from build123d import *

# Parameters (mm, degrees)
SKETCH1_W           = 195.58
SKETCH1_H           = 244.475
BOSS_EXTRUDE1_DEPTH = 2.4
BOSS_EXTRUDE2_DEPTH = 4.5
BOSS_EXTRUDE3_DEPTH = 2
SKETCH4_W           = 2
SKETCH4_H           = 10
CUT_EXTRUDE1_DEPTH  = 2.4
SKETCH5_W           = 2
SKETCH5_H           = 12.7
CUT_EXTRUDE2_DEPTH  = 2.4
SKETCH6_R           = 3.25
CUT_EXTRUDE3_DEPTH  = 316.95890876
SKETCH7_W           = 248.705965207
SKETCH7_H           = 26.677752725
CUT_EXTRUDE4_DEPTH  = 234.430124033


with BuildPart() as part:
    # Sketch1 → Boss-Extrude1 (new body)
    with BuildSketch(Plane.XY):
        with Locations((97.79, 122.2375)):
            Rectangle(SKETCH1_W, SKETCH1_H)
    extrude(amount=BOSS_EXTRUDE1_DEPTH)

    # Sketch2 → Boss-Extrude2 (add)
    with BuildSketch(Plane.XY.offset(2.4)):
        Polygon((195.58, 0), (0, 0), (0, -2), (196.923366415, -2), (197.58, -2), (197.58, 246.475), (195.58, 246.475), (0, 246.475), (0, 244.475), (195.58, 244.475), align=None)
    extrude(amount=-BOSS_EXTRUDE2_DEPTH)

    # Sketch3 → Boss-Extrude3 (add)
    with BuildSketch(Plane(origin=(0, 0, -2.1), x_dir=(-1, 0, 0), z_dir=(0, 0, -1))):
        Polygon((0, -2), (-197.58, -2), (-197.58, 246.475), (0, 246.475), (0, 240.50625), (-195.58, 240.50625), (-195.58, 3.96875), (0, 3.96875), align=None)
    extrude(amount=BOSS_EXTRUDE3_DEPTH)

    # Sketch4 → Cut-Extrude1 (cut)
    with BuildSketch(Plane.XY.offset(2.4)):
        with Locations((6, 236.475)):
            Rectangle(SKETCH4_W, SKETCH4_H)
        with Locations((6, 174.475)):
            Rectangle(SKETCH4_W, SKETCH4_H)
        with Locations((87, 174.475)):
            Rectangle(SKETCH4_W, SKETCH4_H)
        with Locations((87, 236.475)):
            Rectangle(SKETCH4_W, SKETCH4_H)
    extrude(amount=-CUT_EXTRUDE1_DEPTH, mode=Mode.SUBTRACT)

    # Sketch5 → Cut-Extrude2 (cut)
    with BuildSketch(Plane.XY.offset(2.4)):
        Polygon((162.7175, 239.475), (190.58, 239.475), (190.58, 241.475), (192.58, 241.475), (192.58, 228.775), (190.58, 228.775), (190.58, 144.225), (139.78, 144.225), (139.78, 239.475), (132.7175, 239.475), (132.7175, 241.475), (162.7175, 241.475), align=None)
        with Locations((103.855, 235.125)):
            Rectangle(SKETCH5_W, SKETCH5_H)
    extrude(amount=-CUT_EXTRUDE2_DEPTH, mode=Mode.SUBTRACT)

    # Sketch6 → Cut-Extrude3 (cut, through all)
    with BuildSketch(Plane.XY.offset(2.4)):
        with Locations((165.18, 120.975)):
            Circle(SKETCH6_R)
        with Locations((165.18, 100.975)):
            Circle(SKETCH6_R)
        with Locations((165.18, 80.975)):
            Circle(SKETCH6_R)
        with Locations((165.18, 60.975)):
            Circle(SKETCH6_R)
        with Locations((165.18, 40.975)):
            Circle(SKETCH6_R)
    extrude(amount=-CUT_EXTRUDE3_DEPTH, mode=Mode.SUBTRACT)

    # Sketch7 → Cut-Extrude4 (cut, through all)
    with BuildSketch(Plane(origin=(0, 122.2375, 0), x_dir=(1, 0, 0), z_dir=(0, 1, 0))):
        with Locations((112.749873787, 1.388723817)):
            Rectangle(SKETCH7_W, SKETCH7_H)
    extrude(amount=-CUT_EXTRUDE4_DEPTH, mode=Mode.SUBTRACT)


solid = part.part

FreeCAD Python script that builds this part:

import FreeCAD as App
import Part
import Sketcher
from FreeCAD import Vector

doc = App.newDocument("Part")
body = doc.addObject("PartDesign::Body", "Body")

# Sketch on XY plane
sketch1 = body.newObject("Sketcher::SketchObject", "Sketch")
sketch1.AttachmentSupport = (doc.getObject("XY_Plane"), [""])
sketch1.MapMode = "FlatFace"
sketch1.addGeometry(Part.LineSegment(Vector(0, 244, 0), Vector(0, 0, 0)), False)
sketch1.addGeometry(Part.LineSegment(Vector(0, 0, 0), Vector(196, 0, 0)), False)
sketch1.addGeometry(Part.LineSegment(Vector(196, 0, 0), Vector(196, 244, 0)), False)
sketch1.addGeometry(Part.LineSegment(Vector(196, 244, 0), Vector(0, 244, 0)), False)
sketch1.addConstraint(Sketcher.Constraint("Coincident", 0, 2, 1, 1))
sketch1.addConstraint(Sketcher.Constraint("Coincident", 1, 2, 2, 1))
sketch1.addConstraint(Sketcher.Constraint("Coincident", 2, 2, 3, 1))
sketch1.addConstraint(Sketcher.Constraint("Coincident", 3, 2, 0, 1))
sketch1.addConstraint(Sketcher.Constraint("Vertical", 0))
sketch1.addConstraint(Sketcher.Constraint("Horizontal", 1))
sketch1.addConstraint(Sketcher.Constraint("Vertical", 2))
sketch1.addConstraint(Sketcher.Constraint("Horizontal", 3))
sketch1.addConstraint(Sketcher.Constraint("Coincident", 0, 2, -1, 1))
sketch1.addConstraint(Sketcher.Constraint("DistanceX", 1, 1, 1, 2, 195.58))
sketch1.addConstraint(Sketcher.Constraint("DistanceY", 0, 2, 0, 1, 244.475))
pad1 = body.newObject("PartDesign::Pad", "Pad")
pad1.Profile = sketch1
pad1.Length = 2.4

# Sketch on XY plane
sketch2 = body.newObject("Sketcher::SketchObject", "Sketch001")
sketch2.AttachmentSupport = (doc.getObject("XY_Plane"), [""])
sketch2.MapMode = "FlatFace"
sketch2.AttachmentOffset = App.Placement(Vector(0, 0, 2.4), App.Rotation())
sketch2.addGeometry(Part.LineSegment(Vector(195.6, 0, 0), Vector(0, 0, 0)), False)
sketch2.addGeometry(Part.LineSegment(Vector(0, 0, 0), Vector(0, -2, 0)), False)
sketch2.addGeometry(Part.LineSegment(Vector(0, -2, 0), Vector(197.6, -2, 0)), False)
sketch2.addGeometry(Part.LineSegment(Vector(197.6, -2, 0), Vector(197.6, 246.5, 0)), False)
sketch2.addGeometry(Part.LineSegment(Vector(197.6, 246.5, 0), Vector(0, 246.5, 0)), False)
sketch2.addGeometry(Part.LineSegment(Vector(0, 246.5, 0), Vector(0, 244.5, 0)), False)
sketch2.addGeometry(Part.LineSegment(Vector(0, 244.5, 0), Vector(195.6, 244.5, 0)), False)
sketch2.addGeometry(Part.LineSegment(Vector(195.6, 244.5, 0), Vector(195.6, 0, 0)), False)
sketch2.addConstraint(Sketcher.Constraint("Coincident", 0, 2, 1, 1))
sketch2.addConstraint(Sketcher.Constraint("Coincident", 1, 2, 2, 1))
sketch2.addConstraint(Sketcher.Constraint("Coincident", 2, 2, 3, 1))
sketch2.addConstraint(Sketcher.Constraint("Coincident", 3, 2, 4, 1))
sketch2.addConstraint(Sketcher.Constraint("Coincident", 4, 2, 5, 1))
sketch2.addConstraint(Sketcher.Constraint("Coincident", 5, 2, 6, 1))
sketch2.addConstraint(Sketcher.Constraint("Coincident", 6, 2, 7, 1))
sketch2.addConstraint(Sketcher.Constraint("Coincident", 7, 2, 0, 1))
sketch2.addConstraint(Sketcher.Constraint("Horizontal", 0))
sketch2.addConstraint(Sketcher.Constraint("Vertical", 1))
sketch2.addConstraint(Sketcher.Constraint("Horizontal", 2))
sketch2.addConstraint(Sketcher.Constraint("Vertical", 3))
sketch2.addConstraint(Sketcher.Constraint("Horizontal", 4))
sketch2.addConstraint(Sketcher.Constraint("Vertical", 5))
sketch2.addConstraint(Sketcher.Constraint("Horizontal", 6))
sketch2.addConstraint(Sketcher.Constraint("Vertical", 7))
sketch2.addConstraint(Sketcher.Constraint("Coincident", 0, 2, -1, 1))
sketch2.addConstraint(Sketcher.Constraint("PointOnObject", 4, 2, -2))
sketch2.addConstraint(Sketcher.Constraint("Equal", 1, 5))
sketch2.addConstraint(Sketcher.Constraint("DistanceY", 1, 2, 1, 1, 2.0))
sketch2.addConstraint(Sketcher.Constraint("DistanceX", 6, 2, 3, 2, 2.0))
sketch2.addConstraint(Sketcher.Constraint("DistanceX", 0, 2, 0, 1, 195.58))
sketch2.addConstraint(Sketcher.Constraint("DistanceY", 3, 1, 3, 2, 248.475))
pad2 = body.newObject("PartDesign::Pad", "Pad001")
pad2.Profile = sketch2
pad2.Length = 4.5
pad2.Reversed = True

# Sketch on XY plane
sketch3 = body.newObject("Sketcher::SketchObject", "Sketch002")
sketch3.AttachmentSupport = (doc.getObject("XY_Plane"), [""])
sketch3.MapMode = "FlatFace"
sketch3.AttachmentOffset = App.Placement(Vector(0, 0, -2.1), App.Rotation())
sketch3.addGeometry(Part.LineSegment(Vector(198, -2, 0), Vector(0, -2, 0)), False)
sketch3.addGeometry(Part.LineSegment(Vector(0, -2, 0), Vector(0, 4, 0)), False)
sketch3.addGeometry(Part.LineSegment(Vector(0, 4, 0), Vector(196, 4, 0)), False)
sketch3.addGeometry(Part.LineSegment(Vector(196, 4, 0), Vector(196, 241, 0)), False)
sketch3.addGeometry(Part.LineSegment(Vector(196, 241, 0), Vector(0, 241, 0)), False)
sketch3.addGeometry(Part.LineSegment(Vector(0, 241, 0), Vector(0, 246, 0)), False)
sketch3.addGeometry(Part.LineSegment(Vector(0, 246, 0), Vector(198, 246, 0)), False)
sketch3.addGeometry(Part.LineSegment(Vector(198, 246, 0), Vector(198, -2, 0)), False)
sketch3.addConstraint(Sketcher.Constraint("Coincident", 0, 2, 1, 1))
sketch3.addConstraint(Sketcher.Constraint("Coincident", 1, 2, 2, 1))
sketch3.addConstraint(Sketcher.Constraint("Coincident", 2, 2, 3, 1))
sketch3.addConstraint(Sketcher.Constraint("Coincident", 3, 2, 4, 1))
sketch3.addConstraint(Sketcher.Constraint("Coincident", 4, 2, 5, 1))
sketch3.addConstraint(Sketcher.Constraint("Coincident", 5, 2, 6, 1))
sketch3.addConstraint(Sketcher.Constraint("Coincident", 6, 2, 7, 1))
sketch3.addConstraint(Sketcher.Constraint("Coincident", 7, 2, 0, 1))
sketch3.addConstraint(Sketcher.Constraint("Horizontal", 0))
sketch3.addConstraint(Sketcher.Constraint("Vertical", 1))
sketch3.addConstraint(Sketcher.Constraint("Horizontal", 2))
sketch3.addConstraint(Sketcher.Constraint("Vertical", 3))
sketch3.addConstraint(Sketcher.Constraint("Horizontal", 4))
sketch3.addConstraint(Sketcher.Constraint("Vertical", 5))
sketch3.addConstraint(Sketcher.Constraint("Horizontal", 6))
sketch3.addConstraint(Sketcher.Constraint("Vertical", 7))
sketch3.addConstraint(Sketcher.Constraint("PointOnObject", 0, 2, -2))
sketch3.addConstraint(Sketcher.Constraint("PointOnObject", 4, 2, -2))
sketch3.addConstraint(Sketcher.Constraint("Equal", 1, 5))
sketch3.addConstraint(Sketcher.Constraint("DistanceY", 0, 2, -1, 1, 2.0))
sketch3.addConstraint(Sketcher.Constraint("DistanceX", 3, 2, 6, 2, 2.0))
sketch3.addConstraint(Sketcher.Constraint("DistanceX", 0, 2, 0, 1, 197.58))
sketch3.addConstraint(Sketcher.Constraint("DistanceY", 7, 2, 7, 1, 248.475))
sketch3.addConstraint(Sketcher.Constraint("DistanceY", 3, 1, 3, 2, 236.5375))
pad3 = body.newObject("PartDesign::Pad", "Pad002")
pad3.Profile = sketch3
pad3.Length = 2
pad3.Reversed = True

# Sketch on XY plane
sketch4 = body.newObject("Sketcher::SketchObject", "Sketch003")
sketch4.AttachmentSupport = (doc.getObject("XY_Plane"), [""])
sketch4.MapMode = "FlatFace"
sketch4.AttachmentOffset = App.Placement(Vector(0, 0, 2.4), App.Rotation())
sketch4.addGeometry(Part.LineSegment(Vector(5, 241.5, 0), Vector(5, 231.5, 0)), False)
sketch4.addGeometry(Part.LineSegment(Vector(5, 231.5, 0), Vector(7, 231.5, 0)), False)
sketch4.addGeometry(Part.LineSegment(Vector(7, 231.5, 0), Vector(7, 241.5, 0)), False)
sketch4.addGeometry(Part.LineSegment(Vector(7, 241.5, 0), Vector(5, 241.5, 0)), False)
sketch4.addGeometry(Part.LineSegment(Vector(5, 179.5, 0), Vector(5, 169.5, 0)), False)
sketch4.addGeometry(Part.LineSegment(Vector(5, 169.5, 0), Vector(7, 169.5, 0)), False)
sketch4.addGeometry(Part.LineSegment(Vector(7, 169.5, 0), Vector(7, 179.5, 0)), False)
sketch4.addGeometry(Part.LineSegment(Vector(7, 179.5, 0), Vector(5, 179.5, 0)), False)
sketch4.addGeometry(Part.LineSegment(Vector(86, 179.5, 0), Vector(86, 169.5, 0)), False)
sketch4.addGeometry(Part.LineSegment(Vector(86, 169.5, 0), Vector(88, 169.5, 0)), False)
sketch4.addGeometry(Part.LineSegment(Vector(88, 169.5, 0), Vector(88, 179.5, 0)), False)
sketch4.addGeometry(Part.LineSegment(Vector(88, 179.5, 0), Vector(86, 179.5, 0)), False)
sketch4.addGeometry(Part.LineSegment(Vector(86, 241.5, 0), Vector(86, 231.5, 0)), False)
sketch4.addGeometry(Part.LineSegment(Vector(86, 231.5, 0), Vector(88, 231.5, 0)), False)
sketch4.addGeometry(Part.LineSegment(Vector(88, 231.5, 0), Vector(88, 241.5, 0)), False)
sketch4.addGeometry(Part.LineSegment(Vector(88, 241.5, 0), Vector(86, 241.5, 0)), False)
sketch4.addConstraint(Sketcher.Constraint("Coincident", 0, 2, 1, 1))
sketch4.addConstraint(Sketcher.Constraint("Coincident", 1, 2, 2, 1))
sketch4.addConstraint(Sketcher.Constraint("Coincident", 2, 2, 3, 1))
sketch4.addConstraint(Sketcher.Constraint("Coincident", 3, 2, 0, 1))
sketch4.addConstraint(Sketcher.Constraint("Coincident", 4, 2, 5, 1))
sketch4.addConstraint(Sketcher.Constraint("Coincident", 5, 2, 6, 1))
sketch4.addConstraint(Sketcher.Constraint("Coincident", 6, 2, 7, 1))
sketch4.addConstraint(Sketcher.Constraint("Coincident", 7, 2, 4, 1))
sketch4.addConstraint(Sketcher.Constraint("Coincident", 8, 2, 9, 1))
sketch4.addConstraint(Sketcher.Constraint("Coincident", 9, 2, 10, 1))
sketch4.addConstraint(Sketcher.Constraint("Coincident", 10, 2, 11, 1))
sketch4.addConstraint(Sketcher.Constraint("Coincident", 11, 2, 8, 1))
sketch4.addConstraint(Sketcher.Constraint("Coincident", 12, 2, 13, 1))
sketch4.addConstraint(Sketcher.Constraint("Coincident", 13, 2, 14, 1))
sketch4.addConstraint(Sketcher.Constraint("Coincident", 14, 2, 15, 1))
sketch4.addConstraint(Sketcher.Constraint("Coincident", 15, 2, 12, 1))
sketch4.addConstraint(Sketcher.Constraint("Vertical", 0))
sketch4.addConstraint(Sketcher.Constraint("Horizontal", 1))
sketch4.addConstraint(Sketcher.Constraint("Vertical", 2))
sketch4.addConstraint(Sketcher.Constraint("Horizontal", 3))
sketch4.addConstraint(Sketcher.Constraint("Vertical", 4))
sketch4.addConstraint(Sketcher.Constraint("Horizontal", 5))
sketch4.addConstraint(Sketcher.Constraint("Vertical", 6))
sketch4.addConstraint(Sketcher.Constraint("Horizontal", 7))
sketch4.addConstraint(Sketcher.Constraint("Vertical", 8))
sketch4.addConstraint(Sketcher.Constraint("Horizontal", 9))
sketch4.addConstraint(Sketcher.Constraint("Vertical", 10))
sketch4.addConstraint(Sketcher.Constraint("Horizontal", 11))
sketch4.addConstraint(Sketcher.Constraint("Vertical", 12))
sketch4.addConstraint(Sketcher.Constraint("Horizontal", 13))
sketch4.addConstraint(Sketcher.Constraint("Vertical", 14))
sketch4.addConstraint(Sketcher.Constraint("Horizontal", 15))
sketch4.addConstraint(Sketcher.Constraint("Horizontal", 5, 2, 8, 2))
sketch4.addConstraint(Sketcher.Constraint("Horizontal", 7, 2, 10, 2))
sketch4.addConstraint(Sketcher.Constraint("Horizontal", 1, 2, 12, 2))
sketch4.addConstraint(Sketcher.Constraint("Horizontal", 3, 2, 14, 2))
sketch4.addConstraint(Sketcher.Constraint("Vertical", 3, 2, 4, 2))
sketch4.addConstraint(Sketcher.Constraint("Vertical", 2, 2, 5, 2))
sketch4.addConstraint(Sketcher.Constraint("Vertical", 11, 2, 12, 2))
sketch4.addConstraint(Sketcher.Constraint("Vertical", 10, 2, 13, 2))
sketch4.addConstraint(Sketcher.Constraint("Equal", 7, 9))
sketch4.addConstraint(Sketcher.Constraint("Equal", 2, 4))
sketch4.addConstraint(Sketcher.Constraint("DistanceX", 1, 1, 1, 2, 2.0))
sketch4.addConstraint(Sketcher.Constraint("DistanceY", 0, 2, 0, 1, 10.0))
sketch4.addConstraint(Sketcher.Constraint("DistanceX", -1, 1, 0, 2, 5.0))
sketch4.addConstraint(Sketcher.Constraint("DistanceX", -1, 1, 8, 2, 86.0))
sketch4.addConstraint(Sketcher.Constraint("DistanceY", 4, 2, 0, 2, 62.0))
sketch4.addConstraint(Sketcher.Constraint("DistanceY", -1, 1, 0, 2, 231.475))
pocket1 = body.newObject("PartDesign::Pocket", "Pocket")
pocket1.Profile = sketch4
pocket1.Length = 2.4

# Sketch on XY plane
sketch5 = body.newObject("Sketcher::SketchObject", "Sketch004")
sketch5.AttachmentSupport = (doc.getObject("XY_Plane"), [""])
sketch5.MapMode = "FlatFace"
sketch5.AttachmentOffset = App.Placement(Vector(0, 0, 2.4), App.Rotation())
sketch5.addGeometry(Part.LineSegment(Vector(190.6, 239.5, 0), Vector(162.7, 239.5, 0)), False)
sketch5.addGeometry(Part.LineSegment(Vector(162.7, 239.5, 0), Vector(162.7, 241.5, 0)), False)
sketch5.addGeometry(Part.LineSegment(Vector(162.7, 241.5, 0), Vector(132.7, 241.5, 0)), False)
sketch5.addGeometry(Part.LineSegment(Vector(132.7, 241.5, 0), Vector(132.7, 239.5, 0)), False)
sketch5.addGeometry(Part.LineSegment(Vector(132.7, 239.5, 0), Vector(139.8, 239.5, 0)), False)
sketch5.addGeometry(Part.LineSegment(Vector(139.8, 239.5, 0), Vector(139.8, 144.2, 0)), False)
sketch5.addGeometry(Part.LineSegment(Vector(139.8, 144.2, 0), Vector(190.6, 144.2, 0)), False)
sketch5.addGeometry(Part.LineSegment(Vector(190.6, 144.2, 0), Vector(190.6, 228.8, 0)), False)
sketch5.addGeometry(Part.LineSegment(Vector(190.6, 228.8, 0), Vector(192.6, 228.8, 0)), False)
sketch5.addGeometry(Part.LineSegment(Vector(192.6, 228.8, 0), Vector(192.6, 241.5, 0)), False)
sketch5.addGeometry(Part.LineSegment(Vector(192.6, 241.5, 0), Vector(190.6, 241.5, 0)), False)
sketch5.addGeometry(Part.LineSegment(Vector(190.6, 241.5, 0), Vector(190.6, 239.5, 0)), False)
sketch5.addGeometry(Part.LineSegment(Vector(102.9, 241.5, 0), Vector(102.9, 228.8, 0)), False)
sketch5.addGeometry(Part.LineSegment(Vector(102.9, 228.8, 0), Vector(104.9, 228.8, 0)), False)
sketch5.addGeometry(Part.LineSegment(Vector(104.9, 228.8, 0), Vector(104.9, 241.5, 0)), False)
sketch5.addGeometry(Part.LineSegment(Vector(104.9, 241.5, 0), Vector(102.9, 241.5, 0)), False)
sketch5.addConstraint(Sketcher.Constraint("Coincident", 0, 2, 1, 1))
sketch5.addConstraint(Sketcher.Constraint("Coincident", 1, 2, 2, 1))
sketch5.addConstraint(Sketcher.Constraint("Coincident", 2, 2, 3, 1))
sketch5.addConstraint(Sketcher.Constraint("Coincident", 3, 2, 4, 1))
sketch5.addConstraint(Sketcher.Constraint("Coincident", 4, 2, 5, 1))
sketch5.addConstraint(Sketcher.Constraint("Coincident", 5, 2, 6, 1))
sketch5.addConstraint(Sketcher.Constraint("Coincident", 6, 2, 7, 1))
sketch5.addConstraint(Sketcher.Constraint("Coincident", 7, 2, 8, 1))
sketch5.addConstraint(Sketcher.Constraint("Coincident", 8, 2, 9, 1))
sketch5.addConstraint(Sketcher.Constraint("Coincident", 9, 2, 10, 1))
sketch5.addConstraint(Sketcher.Constraint("Coincident", 10, 2, 11, 1))
sketch5.addConstraint(Sketcher.Constraint("Coincident", 11, 2, 0, 1))
sketch5.addConstraint(Sketcher.Constraint("Coincident", 12, 2, 13, 1))
sketch5.addConstraint(Sketcher.Constraint("Coincident", 13, 2, 14, 1))
sketch5.addConstraint(Sketcher.Constraint("Coincident", 14, 2, 15, 1))
sketch5.addConstraint(Sketcher.Constraint("Coincident", 15, 2, 12, 1))
sketch5.addConstraint(Sketcher.Constraint("Horizontal", 0))
sketch5.addConstraint(Sketcher.Constraint("Vertical", 1))
sketch5.addConstraint(Sketcher.Constraint("Horizontal", 2))
sketch5.addConstraint(Sketcher.Constraint("Vertical", 3))
sketch5.addConstraint(Sketcher.Constraint("Horizontal", 4))
sketch5.addConstraint(Sketcher.Constraint("Vertical", 5))
sketch5.addConstraint(Sketcher.Constraint("Horizontal", 6))
sketch5.addConstraint(Sketcher.Constraint("Vertical", 7))
sketch5.addConstraint(Sketcher.Constraint("Horizontal", 8))
sketch5.addConstraint(Sketcher.Constraint("Vertical", 9))
sketch5.addConstraint(Sketcher.Constraint("Horizontal", 10))
sketch5.addConstraint(Sketcher.Constraint("Vertical", 11))
sketch5.addConstraint(Sketcher.Constraint("Vertical", 12))
sketch5.addConstraint(Sketcher.Constraint("Horizontal", 13))
sketch5.addConstraint(Sketcher.Constraint("Vertical", 14))
sketch5.addConstraint(Sketcher.Constraint("Horizontal", 15))
sketch5.addConstraint(Sketcher.Constraint("Horizontal", 0, 2, 3, 2))
sketch5.addConstraint(Sketcher.Constraint("Horizontal", 2, 2, 9, 2))
sketch5.addConstraint(Sketcher.Constraint("Horizontal", 8, 2, 12, 2))
sketch5.addConstraint(Sketcher.Constraint("Horizontal", 10, 2, 14, 2))
sketch5.addConstraint(Sketcher.Constraint("Vertical", 7, 2, 10, 2))
sketch5.addConstraint(Sketcher.Constraint("Equal", 10, 13))
sketch5.addConstraint(Sketcher.Constraint("Equal", 15, 1))
sketch5.addConstraint(Sketcher.Constraint("DistanceX", 2, 2, 2, 1, 30.0))
sketch5.addConstraint(Sketcher.Constraint("DistanceX", 8, 1, 8, 2, 2.0))
sketch5.addConstraint(Sketcher.Constraint("DistanceX", 6, 1, 6, 2, 50.8))
sketch5.addConstraint(Sketcher.Constraint("DistanceY", 9, 1, 9, 2, 12.7))
sketch5.addConstraint(Sketcher.Constraint("DistanceY", 5, 2, 5, 1, 95.25))
sketch5.addConstraint(Sketcher.Constraint("DistanceX", -1, 1, 4, 2, 139.78))
sketch5.addConstraint(Sketcher.Constraint("DistanceX", 0, 2, 0, 1, 27.8625))
sketch5.addConstraint(Sketcher.Constraint("DistanceY", -1, 1, 0, 2, 239.475))
sketch5.addConstraint(Sketcher.Constraint("DistanceX", -1, 1, 12, 2, 102.855))
pocket2 = body.newObject("PartDesign::Pocket", "Pocket001")
pocket2.Profile = sketch5
pocket2.Length = 2.4

# Sketch on XY plane
sketch6 = body.newObject("Sketcher::SketchObject", "Sketch005")
sketch6.AttachmentSupport = (doc.getObject("XY_Plane"), [""])
sketch6.MapMode = "FlatFace"
sketch6.AttachmentOffset = App.Placement(Vector(0, 0, 2.4), App.Rotation())
sketch6.addGeometry(Part.Circle(Vector(165.2, 121, 0), Vector(0, 0, 1), 3.2), False)
sketch6.addGeometry(Part.Circle(Vector(165.2, 101, 0), Vector(0, 0, 1), 3.2), False)
sketch6.addGeometry(Part.Circle(Vector(165.2, 81, 0), Vector(0, 0, 1), 3.2), False)
sketch6.addGeometry(Part.Circle(Vector(165.2, 61, 0), Vector(0, 0, 1), 3.2), False)
sketch6.addGeometry(Part.Circle(Vector(165.2, 41, 0), Vector(0, 0, 1), 3.2), False)
sketch6.addConstraint(Sketcher.Constraint("Equal", 0, 1))
sketch6.addConstraint(Sketcher.Constraint("Equal", 1, 2))
sketch6.addConstraint(Sketcher.Constraint("Equal", 2, 3))
sketch6.addConstraint(Sketcher.Constraint("Equal", 3, 4))
sketch6.addConstraint(Sketcher.Constraint("Vertical", 0, 3, 1, 3))
sketch6.addConstraint(Sketcher.Constraint("Vertical", 1, 3, 2, 3))
sketch6.addConstraint(Sketcher.Constraint("Vertical", 2, 3, 3, 3))
sketch6.addConstraint(Sketcher.Constraint("Vertical", 3, 3, 4, 3))
sketch6.addConstraint(Sketcher.Constraint("Diameter", 0, 6.5))
sketch6.addConstraint(Sketcher.Constraint("DistanceY", 1, 3, 0, 3, 20.0))
sketch6.addConstraint(Sketcher.Constraint("DistanceY", 2, 3, 1, 3, 20.0))
sketch6.addConstraint(Sketcher.Constraint("DistanceY", 3, 3, 2, 3, 20.0))
sketch6.addConstraint(Sketcher.Constraint("DistanceY", 4, 3, 3, 3, 20.0))
sketch6.addConstraint(Sketcher.Constraint("DistanceX", -1, 1, 0, 3, 165.18))
sketch6.addConstraint(Sketcher.Constraint("DistanceY", -1, 1, 0, 3, 120.975))
pocket3 = body.newObject("PartDesign::Pocket", "Pocket002")
pocket3.Profile = sketch6
pocket3.Type = "ThroughAll"

# Sketch on XZ plane
sketch7 = body.newObject("Sketcher::SketchObject", "Sketch006")
sketch7.AttachmentSupport = (doc.getObject("XZ_Plane"), [""])
sketch7.MapMode = "FlatFace"
sketch7.AttachmentOffset = App.Placement(Vector(0, 0, -122.2375), App.Rotation())
sketch7.addGeometry(Part.LineSegment(Vector(-12, -15, 0), Vector(-12, 12, 0)), False)
sketch7.addGeometry(Part.LineSegment(Vector(-12, 12, 0), Vector(237, 12, 0)), False)
sketch7.addGeometry(Part.LineSegment(Vector(237, 12, 0), Vector(237, -15, 0)), False)
sketch7.addGeometry(Part.LineSegment(Vector(237, -15, 0), Vector(-12, -15, 0)), False)
sketch7.addConstraint(Sketcher.Constraint("Coincident", 0, 2, 1, 1))
sketch7.addConstraint(Sketcher.Constraint("Coincident", 1, 2, 2, 1))
sketch7.addConstraint(Sketcher.Constraint("Coincident", 2, 2, 3, 1))
sketch7.addConstraint(Sketcher.Constraint("Coincident", 3, 2, 0, 1))
sketch7.addConstraint(Sketcher.Constraint("Vertical", 0))
sketch7.addConstraint(Sketcher.Constraint("Horizontal", 1))
sketch7.addConstraint(Sketcher.Constraint("Vertical", 2))
sketch7.addConstraint(Sketcher.Constraint("Horizontal", 3))
sketch7.addConstraint(Sketcher.Constraint("DistanceY", 2, 2, -1, 1, 14.7276))
sketch7.addConstraint(Sketcher.Constraint("DistanceX", 1, 1, 1, 2, 248.705965))
sketch7.addConstraint(Sketcher.Constraint("DistanceY", 0, 1, 0, 2, 26.677753))
sketch7.addConstraint(Sketcher.Constraint("DistanceX", 0, 2, -1, 1, 11.603109))
pocket4 = body.newObject("PartDesign::Pocket", "Pocket003")
pocket4.Profile = sketch7
pocket4.Type = "ThroughAll"
pocket4.Reversed = True

doc.recompute()
